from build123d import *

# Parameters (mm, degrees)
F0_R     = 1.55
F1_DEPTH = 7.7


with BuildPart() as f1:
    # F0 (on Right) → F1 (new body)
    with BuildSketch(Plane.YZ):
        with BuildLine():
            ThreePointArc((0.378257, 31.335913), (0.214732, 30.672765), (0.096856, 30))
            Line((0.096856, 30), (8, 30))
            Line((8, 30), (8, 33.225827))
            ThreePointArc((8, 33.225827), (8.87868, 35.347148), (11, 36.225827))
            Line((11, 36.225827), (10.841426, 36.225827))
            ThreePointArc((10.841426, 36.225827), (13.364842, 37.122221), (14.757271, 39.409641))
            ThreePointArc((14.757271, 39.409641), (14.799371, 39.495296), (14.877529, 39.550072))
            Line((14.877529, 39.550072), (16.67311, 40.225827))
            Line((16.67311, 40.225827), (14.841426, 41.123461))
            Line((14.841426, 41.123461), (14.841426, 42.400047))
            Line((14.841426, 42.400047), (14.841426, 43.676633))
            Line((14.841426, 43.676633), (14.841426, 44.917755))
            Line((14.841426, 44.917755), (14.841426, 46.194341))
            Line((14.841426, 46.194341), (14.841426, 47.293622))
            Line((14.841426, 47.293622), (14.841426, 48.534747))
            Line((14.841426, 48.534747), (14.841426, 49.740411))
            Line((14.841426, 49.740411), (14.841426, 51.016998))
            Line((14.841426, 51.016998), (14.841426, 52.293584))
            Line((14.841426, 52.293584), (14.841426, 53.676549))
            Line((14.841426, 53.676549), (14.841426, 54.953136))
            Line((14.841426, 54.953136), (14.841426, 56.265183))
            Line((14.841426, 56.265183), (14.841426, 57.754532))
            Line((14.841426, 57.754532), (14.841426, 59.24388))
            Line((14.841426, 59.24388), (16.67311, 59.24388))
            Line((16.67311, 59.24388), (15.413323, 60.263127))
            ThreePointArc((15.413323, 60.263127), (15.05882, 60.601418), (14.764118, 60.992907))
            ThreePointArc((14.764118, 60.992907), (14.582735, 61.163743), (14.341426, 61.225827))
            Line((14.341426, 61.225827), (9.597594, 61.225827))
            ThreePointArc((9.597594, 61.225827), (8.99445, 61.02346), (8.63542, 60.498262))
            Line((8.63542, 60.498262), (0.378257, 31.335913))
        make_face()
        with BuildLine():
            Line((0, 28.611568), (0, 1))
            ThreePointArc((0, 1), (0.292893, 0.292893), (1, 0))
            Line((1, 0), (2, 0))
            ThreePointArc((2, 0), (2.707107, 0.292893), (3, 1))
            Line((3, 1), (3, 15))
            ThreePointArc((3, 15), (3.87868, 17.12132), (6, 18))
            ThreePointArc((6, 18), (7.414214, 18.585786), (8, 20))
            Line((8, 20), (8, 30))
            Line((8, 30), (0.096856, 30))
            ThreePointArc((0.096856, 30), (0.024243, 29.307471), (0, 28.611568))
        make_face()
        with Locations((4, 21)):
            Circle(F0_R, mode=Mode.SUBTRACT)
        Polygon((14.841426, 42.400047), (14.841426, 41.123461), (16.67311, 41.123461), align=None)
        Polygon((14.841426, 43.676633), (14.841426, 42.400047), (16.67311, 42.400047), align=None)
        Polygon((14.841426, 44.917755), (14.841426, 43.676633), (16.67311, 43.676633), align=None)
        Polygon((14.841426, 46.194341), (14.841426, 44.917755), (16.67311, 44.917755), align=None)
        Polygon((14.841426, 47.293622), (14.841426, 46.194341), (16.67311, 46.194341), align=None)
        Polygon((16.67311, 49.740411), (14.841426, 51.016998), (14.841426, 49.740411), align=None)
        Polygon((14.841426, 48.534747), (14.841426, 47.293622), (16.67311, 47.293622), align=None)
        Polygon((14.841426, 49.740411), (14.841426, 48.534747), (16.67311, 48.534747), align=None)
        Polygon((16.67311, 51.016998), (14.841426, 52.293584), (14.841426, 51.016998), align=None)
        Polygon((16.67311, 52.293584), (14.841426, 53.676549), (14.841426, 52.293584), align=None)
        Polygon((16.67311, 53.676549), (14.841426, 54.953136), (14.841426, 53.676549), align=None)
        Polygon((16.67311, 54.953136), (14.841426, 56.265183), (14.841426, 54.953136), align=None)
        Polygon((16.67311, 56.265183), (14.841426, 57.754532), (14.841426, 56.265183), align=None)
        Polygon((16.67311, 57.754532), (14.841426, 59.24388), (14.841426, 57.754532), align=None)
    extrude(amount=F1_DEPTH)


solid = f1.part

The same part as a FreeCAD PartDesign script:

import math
import FreeCAD as App
import Part
import Sketcher

V = App.Vector
Q = App.Units.Quantity

doc = App.newDocument("Part")
body = doc.addObject("PartDesign::Body", "Body")

sketch1 = doc.addObject("Sketcher::SketchObject", "Sketch")
body.addObject(sketch1)
sketch1.AttachmentSupport = (doc.YZ_Plane, [""])
sketch1.MapMode = "FlatFace"
sketch1.addGeometry([
    Part.LineSegment(V(8.63542, 60.498262, 0), V(0.378257, 31.335913, 0)),
    Part.ArcOfCircle(Part.Circle(V(9.999923, 28.61158, 0), V(0, 0, 1), 9.999922), math.radians(164.190762), math.radians(172.019096)),
    Part.ArcOfCircle(Part.Circle(V(9.999867, 28.611579, 0), V(0, 0, 1), 9.999867), math.radians(172.019044), math.radians(180.000062)),
    Part.LineSegment(V(0, 28.611568, 0), V(0, 1, 0)),
    Part.ArcOfCircle(Part.Circle(V(0.999999, 0.999999, 0), V(0, 0, 1), 0.999999), math.radians(179.999957), math.radians(270.000043)),
    Part.LineSegment(V(1, 0, 0), V(2, 0, 0)),
    Part.ArcOfCircle(Part.Circle(V(2.000001, 0.999999, 0), V(0, 0, 1), 0.999999), math.radians(-90.000043), math.radians(0.000043)),
    Part.LineSegment(V(3, 1, 0), V(3, 15, 0)),
    Part.ArcOfCircle(Part.Circle(V(6.000001, 14.999999, 0), V(0, 0, 1), 3.000001), math.radians(90.000022), math.radians(179.999978)),
    Part.ArcOfCircle(Part.Circle(V(6.000001, 19.999999, 0), V(0, 0, 1), 1.999999), math.radians(-90.000043), math.radians(0.000043)),
    Part.LineSegment(V(8, 20, 0), V(8, 33.225827, 0)),
    Part.ArcOfCircle(Part.Circle(V(10.999999, 33.225828, 0), V(0, 0, 1), 2.999999), math.radians(89.99999), math.radians(180.00001)),
    Part.LineSegment(V(11, 36.225827, 0), V(10.841426, 36.225827, 0)),
    Part.ArcOfCircle(Part.Circle(V(10.841425, 40.225828, 0), V(0, 0, 1), 4.000001), math.radians(-89.99999), math.radians(-11.773701)),
    Part.ArcOfCircle(Part.Circle(V(14.945114, 39.370489, 0), V(0, 0, 1), 0.19188), math.radians(110.62353), math.radians(168.226317)),
    Part.LineSegment(V(14.877529, 39.550072, 0), V(16.67311, 40.225827, 0)),
    Part.LineSegment(V(16.67311, 40.225827, 0), V(14.841426, 41.123461, 0)),
    Part.LineSegment(V(14.841426, 41.123461, 0), V(16.67311, 41.123461, 0)),
    Part.LineSegment(V(16.67311, 41.123461, 0), V(14.841426, 42.400047, 0)),
    Part.LineSegment(V(14.841426, 42.400047, 0), V(16.67311, 42.400047, 0)),
    Part.LineSegment(V(16.67311, 42.400047, 0), V(14.841426, 43.676633, 0)),
    Part.LineSegment(V(14.841426, 43.676633, 0), V(16.67311, 43.676633, 0)),
    Part.LineSegment(V(16.67311, 43.676633, 0), V(14.841426, 44.917755, 0)),
    Part.LineSegment(V(14.841426, 44.917755, 0), V(16.67311, 44.917755, 0)),
    Part.LineSegment(V(16.67311, 44.917755, 0), V(14.841426, 46.194341, 0)),
    Part.LineSegment(V(14.841426, 46.194341, 0), V(16.67311, 46.194341, 0)),
    Part.LineSegment(V(16.67311, 46.194341, 0), V(14.841426, 47.293622, 0)),
    Part.LineSegment(V(14.841426, 47.293622, 0), V(16.67311, 47.293622, 0)),
    Part.LineSegment(V(16.67311, 47.293622, 0), V(14.841426, 48.534747, 0)),
    Part.LineSegment(V(14.841426, 48.534747, 0), V(16.67311, 48.534747, 0)),
    Part.LineSegment(V(16.67311, 48.534747, 0), V(14.841426, 49.740411, 0)),
    Part.LineSegment(V(14.841426, 49.740411, 0), V(16.67311, 49.740411, 0)),
    Part.LineSegment(V(16.67311, 49.740411, 0), V(14.841426, 51.016998, 0)),
    Part.LineSegment(V(14.841426, 51.016998, 0), V(16.67311, 51.016998, 0)),
    Part.LineSegment(V(16.67311, 51.016998, 0), V(14.841426, 52.293584, 0)),
    Part.LineSegment(V(14.841426, 52.293584, 0), V(16.67311, 52.293584, 0)),
    Part.LineSegment(V(16.67311, 52.293584, 0), V(14.841426, 53.676549, 0)),
    Part.LineSegment(V(14.841426, 53.676549, 0), V(16.67311, 53.676549, 0)),
    Part.LineSegment(V(16.67311, 53.676549, 0), V(14.841426, 54.953136, 0)),
    Part.LineSegment(V(14.841426, 54.953136, 0), V(16.67311, 54.953136, 0)),
    Part.LineSegment(V(16.67311, 54.953136, 0), V(14.841426, 56.265183, 0)),
    Part.LineSegment(V(14.841426, 56.265183, 0), V(16.67311, 56.265183, 0)),
    Part.LineSegment(V(16.67311, 56.265183, 0), V(14.841426, 57.754532, 0)),
    Part.LineSegment(V(14.841426, 57.754532, 0), V(16.67311, 57.754532, 0)),
    Part.LineSegment(V(16.67311, 57.754532, 0), V(14.841426, 59.24388, 0)),
    Part.LineSegment(V(14.841426, 59.24388, 0), V(16.67311, 59.24388, 0)),
    Part.LineSegment(V(16.67311, 59.24388, 0), V(15.413323, 60.263127, 0)),
    Part.ArcOfCircle(Part.Circle(V(17.30024, 62.595363, 0), V(0, 0, 1), 2.999963), math.radians(-147.713142), math.radians(-128.974914)),
    Part.ArcOfCircle(Part.Circle(V(14.341428, 60.725829, 0), V(0, 0, 1), 0.499998), math.radians(32.286824), math.radians(90.000173)),
    Part.LineSegment(V(14.341426, 61.225827, 0), V(9.597594, 61.225827, 0)),
    Part.ArcOfCircle(Part.Circle(V(9.597592, 60.22583, 0), V(0, 0, 1), 0.999997), math.radians(89.999898), math.radians(164.190897)),
    Part.Circle(V(4, 21, 0), V(0, 0, 1), 1.55),
], False)
sketch1.addConstraint([
    Sketcher.Constraint("Coincident", 0, 2, 1, 1),
    Sketcher.Constraint("Coincident", 1, 2, 2, 1),
    Sketcher.Constraint("Coincident", 2, 2, 3, 1),
    Sketcher.Constraint("Coincident", 3, 2, 4, 1),
    Sketcher.Constraint("Coincident", 4, 2, 5, 1),
    Sketcher.Constraint("Coincident", 5, 2, 6, 1),
    Sketcher.Constraint("Coincident", 6, 2, 7, 1),
    Sketcher.Constraint("Coincident", 7, 2, 8, 2),
    Sketcher.Constraint("Coincident", 8, 1, 9, 1),
    Sketcher.Constraint("Coincident", 9, 2, 10, 1),
    Sketcher.Constraint("Coincident", 10, 2, 11, 2),
    Sketcher.Constraint("Coincident", 11, 1, 12, 1),
    Sketcher.Constraint("Coincident", 12, 2, 13, 1),
    Sketcher.Constraint("Coincident", 13, 2, 14, 2),
    Sketcher.Constraint("Coincident", 14, 1, 15, 1),
    Sketcher.Constraint("Coincident", 15, 2, 16, 1),
    Sketcher.Constraint("Coincident", 16, 2, 17, 1),
    Sketcher.Constraint("Coincident", 17, 2, 18, 1),
    Sketcher.Constraint("Coincident", 18, 2, 19, 1),
    Sketcher.Constraint("Coincident", 19, 2, 20, 1),
    Sketcher.Constraint("Coincident", 20, 2, 21, 1),
    Sketcher.Constraint("Coincident", 21, 2, 22, 1),
    Sketcher.Constraint("Coincident", 22, 2, 23, 1),
    Sketcher.Constraint("Coincident", 23, 2, 24, 1),
    Sketcher.Constraint("Coincident", 24, 2, 25, 1),
    Sketcher.Constraint("Coincident", 25, 2, 26, 1),
    Sketcher.Constraint("Coincident", 26, 2, 27, 1),
    Sketcher.Constraint("Coincident", 27, 2, 28, 1),
    Sketcher.Constraint("Coincident", 28, 2, 29, 1),
    Sketcher.Constraint("Coincident", 29, 2, 30, 1),
    Sketcher.Constraint("Coincident", 30, 2, 31, 1),
    Sketcher.Constraint("Coincident", 31, 2, 32, 1),
    Sketcher.Constraint("Coincident", 32, 2, 33, 1),
    Sketcher.Constraint("Coincident", 33, 2, 34, 1),
    Sketcher.Constraint("Coincident", 34, 2, 35, 1),
    Sketcher.Constraint("Coincident", 35, 2, 36, 1),
    Sketcher.Constraint("Coincident", 36, 2, 37, 1),
    Sketcher.Constraint("Coincident", 37, 2, 38, 1),
    Sketcher.Constraint("Coincident", 38, 2, 39, 1),
    Sketcher.Constraint("Coincident", 39, 2, 40, 1),
    Sketcher.Constraint("Coincident", 40, 2, 41, 1),
    Sketcher.Constraint("Coincident", 41, 2, 42, 1),
    Sketcher.Constraint("Coincident", 42, 2, 43, 1),
    Sketcher.Constraint("Coincident", 43, 2, 44, 1),
    Sketcher.Constraint("Coincident", 44, 2, 45, 1),
    Sketcher.Constraint("Coincident", 45, 2, 46, 1),
    Sketcher.Constraint("Coincident", 46, 2, 47, 2),
    Sketcher.Constraint("Coincident", 47, 1, 48, 1),
    Sketcher.Constraint("Coincident", 48, 2, 49, 1),
    Sketcher.Constraint("Coincident", 49, 2, 50, 1),
    Sketcher.Constraint("Coincident", 50, 2, 0, 1),
    Sketcher.Constraint("Vertical", 3),
    Sketcher.Constraint("Horizontal", 5),
    Sketcher.Constraint("Vertical", 7),
    Sketcher.Constraint("Vertical", 10),
    Sketcher.Constraint("Horizontal", 12),
    Sketcher.Constraint("Horizontal", 17),
    Sketcher.Constraint("Horizontal", 19),
    Sketcher.Constraint("Horizontal", 21),
    Sketcher.Constraint("Horizontal", 23),
    Sketcher.Constraint("Horizontal", 25),
    Sketcher.Constraint("Horizontal", 27),
    Sketcher.Constraint("Horizontal", 29),
    Sketcher.Constraint("Horizontal", 31),
    Sketcher.Constraint("Horizontal", 33),
    Sketcher.Constraint("Horizontal", 35),
    Sketcher.Constraint("Horizontal", 37),
    Sketcher.Constraint("Horizontal", 39),
    Sketcher.Constraint("Horizontal", 41),
    Sketcher.Constraint("Horizontal", 43),
    Sketcher.Constraint("Horizontal", 45),
    Sketcher.Constraint("Horizontal", 49),
    Sketcher.Constraint("PointOnObject", 2, 2, -2),
    Sketcher.Constraint("PointOnObject", 4, 2, -1),
    Sketcher.Constraint("Radius", 4, Q("0.999999 mm")),
    Sketcher.Constraint("Radius", 6, Q("0.999999 mm")),
    Sketcher.Constraint("Radius", 8, Q("3.000001 mm")),
    Sketcher.Constraint("Radius", 9, Q("1.999999 mm")),
    Sketcher.Constraint("Radius", 11, Q("2.999999 mm")),
    Sketcher.Constraint("Radius", 13, Q("4.000001 mm")),
    Sketcher.Constraint("Diameter", 51, Q("3.1 mm")),
    Sketcher.Constraint("DistanceX", 5, 1, 5, 2, Q("1 mm")),
    Sketcher.Constraint("DistanceY", 7, 1, 7, 2, Q("14 mm")),
    Sketcher.Constraint("DistanceX", -1, 1, 6, 3, Q("2.000001 mm")),
    Sketcher.Constraint("DistanceY", -1, 1, 8, 3, Q("14.999999 mm")),
    Sketcher.Constraint("DistanceX", -1, 1, 9, 3, Q("6.000001 mm")),
    Sketcher.Constraint("DistanceX", -1, 1, 51, 3, Q("4 mm")),
    Sketcher.Constraint("DistanceY", -1, 1, 51, 3, Q("21 mm")),
    Sketcher.Constraint("DistanceY", -1, 1, 1, 2, Q("30 mm")),
    Sketcher.Constraint("DistanceY", -1, 1, 3, 2, Q("1 mm")),
    Sketcher.Constraint("DistanceX", -1, 1, 4, 2, Q("1 mm")),
    Sketcher.Constraint("DistanceY", -1, 1, 6, 2, Q("1 mm")),
    Sketcher.Constraint("DistanceX", -1, 1, 8, 1, Q("6 mm")),
    Sketcher.Constraint("DistanceY", -1, 1, 9, 2, Q("20 mm")),
    Sketcher.Constraint("DistanceX", -1, 1, 11, 1, Q("11 mm")),
    Sketcher.Constraint("Radius", 14, Q("0.19188 mm")),
    Sketcher.Constraint("Radius", 1, Q("9.999922 mm")),
    Sketcher.Constraint("Radius", 2, Q("9.999867 mm")),
    Sketcher.Constraint("Radius", 47, Q("2.999963 mm")),
    Sketcher.Constraint("Radius", 48, Q("0.499998 mm")),
    Sketcher.Constraint("Radius", 50, Q("0.999997 mm")),
    Sketcher.Constraint("Distance", 0, Q("30.3088 mm")),
    Sketcher.Constraint("DistanceX", 49, 2, 49, 1, Q("4.743832 mm")),
    Sketcher.Constraint("Distance", 15, Q("1.91853 mm")),
    Sketcher.Constraint("Distance", 26, Q("2.136231 mm")),
    Sketcher.Constraint("Distance", 28, Q("2.212568 mm")),
    Sketcher.Constraint("Distance", 36, Q("2.295138 mm")),
    Sketcher.Constraint("Distance", 42, Q("2.360768 mm")),
    Sketcher.Constraint("Distance", 46, Q("1.620471 mm")),
    Sketcher.Constraint("DistanceX", 12, 2, 12, 1, Q("0.158574 mm")),
    Sketcher.Constraint("DistanceX", 17, 1, 17, 2, Q("1.831684 mm")),
    Sketcher.Constraint("DistanceX", 19, 1, 19, 2, Q("1.831684 mm")),
    Sketcher.Constraint("DistanceX", 21, 1, 21, 2, Q("1.831684 mm")),
    Sketcher.Constraint("DistanceX", 23, 1, 23, 2, Q("1.831684 mm")),
    Sketcher.Constraint("DistanceX", 25, 1, 25, 2, Q("1.831684 mm")),
    Sketcher.Constraint("DistanceX", 27, 1, 27, 2, Q("1.831684 mm")),
    Sketcher.Constraint("DistanceX", 29, 1, 29, 2, Q("1.831684 mm")),
    Sketcher.Constraint("DistanceX", 31, 1, 31, 2, Q("1.831684 mm")),
    Sketcher.Constraint("DistanceX", 33, 1, 33, 2, Q("1.831684 mm")),
    Sketcher.Constraint("DistanceX", 35, 1, 35, 2, Q("1.831684 mm")),
    Sketcher.Constraint("DistanceX", 37, 1, 37, 2, Q("1.831684 mm")),
    Sketcher.Constraint("DistanceX", 39, 1, 39, 2, Q("1.831684 mm")),
    Sketcher.Constraint("DistanceX", 41, 1, 41, 2, Q("1.831684 mm")),
    Sketcher.Constraint("DistanceX", 43, 1, 43, 2, Q("1.831684 mm")),
    Sketcher.Constraint("DistanceX", 45, 1, 45, 2, Q("1.831684 mm")),
    Sketcher.Constraint("DistanceY", 3, 2, 3, 1, Q("27.611568 mm")),
    Sketcher.Constraint("DistanceY", 10, 1, 10, 2, Q("13.225827 mm")),
    Sketcher.Constraint("DistanceY", -1, 1, 1, 3, Q("28.61158 mm")),
    Sketcher.Constraint("DistanceY", -1, 1, 2, 3, Q("28.611579 mm")),
    Sketcher.Constraint("DistanceY", -1, 1, 13, 3, Q("40.225828 mm")),
    Sketcher.Constraint("DistanceY", -1, 1, 14, 3, Q("39.370489 mm")),
    Sketcher.Constraint("DistanceX", -1, 1, 47, 3, Q("17.30024 mm")),
    Sketcher.Constraint("DistanceY", -1, 1, 48, 3, Q("60.725829 mm")),
    Sketcher.Constraint("DistanceX", -1, 1, 13, 2, Q("14.757271 mm")),
    Sketcher.Constraint("DistanceY", -1, 1, 13, 2, Q("39.409641 mm")),
    Sketcher.Constraint("DistanceX", -1, 1, 14, 1, Q("14.877529 mm")),
    Sketcher.Constraint("DistanceX", -1, 1, 15, 2, Q("16.67311 mm")),
    Sketcher.Constraint("DistanceY", -1, 1, 16, 2, Q("41.123461 mm")),
    Sketcher.Constraint("DistanceX", -1, 1, 17, 2, Q("16.67311 mm")),
    Sketcher.Constraint("DistanceX", -1, 1, 19, 2, Q("16.67311 mm")),
    Sketcher.Constraint("DistanceX", -1, 1, 21, 2, Q("16.67311 mm")),
    Sketcher.Constraint("DistanceX", -1, 1, 23, 2, Q("16.67311 mm")),
    Sketcher.Constraint("DistanceY", -1, 1, 24, 2, Q("46.194341 mm")),
    Sketcher.Constraint("DistanceX", -1, 1, 25, 2, Q("16.67311 mm")),
    Sketcher.Constraint("DistanceX", -1, 1, 27, 2, Q("16.67311 mm")),
    Sketcher.Constraint("DistanceX", -1, 1, 29, 2, Q("16.67311 mm")),
    Sketcher.Constraint("DistanceY", -1, 1, 30, 2, Q("49.740411 mm")),
    Sketcher.Constraint("DistanceX", -1, 1, 31, 2, Q("16.67311 mm")),
    Sketcher.Constraint("DistanceX", -1, 1, 33, 2, Q("16.67311 mm")),
    Sketcher.Constraint("DistanceX", -1, 1, 35, 2, Q("16.67311 mm")),
    Sketcher.Constraint("DistanceY", -1, 1, 36, 2, Q("53.676549 mm")),
    Sketcher.Constraint("DistanceX", -1, 1, 37, 2, Q("16.67311 mm")),
    Sketcher.Constraint("DistanceX", -1, 1, 39, 2, Q("16.67311 mm")),
    Sketcher.Constraint("DistanceX", -1, 1, 41, 2, Q("16.67311 mm")),
    Sketcher.Constraint("DistanceY", -1, 1, 42, 2, Q("57.754532 mm")),
    Sketcher.Constraint("DistanceX", -1, 1, 43, 2, Q("16.67311 mm")),
    Sketcher.Constraint("DistanceY", -1, 1, 44, 2, Q("59.24388 mm")),
    Sketcher.Constraint("DistanceX", -1, 1, 45, 2, Q("16.67311 mm")),
    Sketcher.Constraint("DistanceX", -1, 1, 47, 1, Q("14.764118 mm")),
    Sketcher.Constraint("DistanceX", -1, 1, 50, 2, Q("8.63542 mm")),
    Sketcher.Constraint("Distance", 18, Q("2.232653 mm")),
    Sketcher.Constraint("Distance", 20, Q("2.232653 mm")),
    Sketcher.Constraint("Distance", 22, Q("2.212566 mm")),
    Sketcher.Constraint("Distance", 32, Q("2.232653 mm")),
    Sketcher.Constraint("Distance", 38, Q("2.232653 mm")),
    Sketcher.Constraint("DistanceY", -1, 1, 47, 3, Q("62.595363 mm")),
    Sketcher.Constraint("DistanceX", -1, 1, 50, 3, Q("9.597592 mm")),
    Sketcher.Constraint("DistanceX", -1, 1, 48, 2, Q("14.341426 mm")),
])
pad1 = doc.addObject("PartDesign::Pad", "Pad")
body.addObject(pad1)
pad1.Profile = sketch1
pad1.Length = 7.7

doc.recompute()
